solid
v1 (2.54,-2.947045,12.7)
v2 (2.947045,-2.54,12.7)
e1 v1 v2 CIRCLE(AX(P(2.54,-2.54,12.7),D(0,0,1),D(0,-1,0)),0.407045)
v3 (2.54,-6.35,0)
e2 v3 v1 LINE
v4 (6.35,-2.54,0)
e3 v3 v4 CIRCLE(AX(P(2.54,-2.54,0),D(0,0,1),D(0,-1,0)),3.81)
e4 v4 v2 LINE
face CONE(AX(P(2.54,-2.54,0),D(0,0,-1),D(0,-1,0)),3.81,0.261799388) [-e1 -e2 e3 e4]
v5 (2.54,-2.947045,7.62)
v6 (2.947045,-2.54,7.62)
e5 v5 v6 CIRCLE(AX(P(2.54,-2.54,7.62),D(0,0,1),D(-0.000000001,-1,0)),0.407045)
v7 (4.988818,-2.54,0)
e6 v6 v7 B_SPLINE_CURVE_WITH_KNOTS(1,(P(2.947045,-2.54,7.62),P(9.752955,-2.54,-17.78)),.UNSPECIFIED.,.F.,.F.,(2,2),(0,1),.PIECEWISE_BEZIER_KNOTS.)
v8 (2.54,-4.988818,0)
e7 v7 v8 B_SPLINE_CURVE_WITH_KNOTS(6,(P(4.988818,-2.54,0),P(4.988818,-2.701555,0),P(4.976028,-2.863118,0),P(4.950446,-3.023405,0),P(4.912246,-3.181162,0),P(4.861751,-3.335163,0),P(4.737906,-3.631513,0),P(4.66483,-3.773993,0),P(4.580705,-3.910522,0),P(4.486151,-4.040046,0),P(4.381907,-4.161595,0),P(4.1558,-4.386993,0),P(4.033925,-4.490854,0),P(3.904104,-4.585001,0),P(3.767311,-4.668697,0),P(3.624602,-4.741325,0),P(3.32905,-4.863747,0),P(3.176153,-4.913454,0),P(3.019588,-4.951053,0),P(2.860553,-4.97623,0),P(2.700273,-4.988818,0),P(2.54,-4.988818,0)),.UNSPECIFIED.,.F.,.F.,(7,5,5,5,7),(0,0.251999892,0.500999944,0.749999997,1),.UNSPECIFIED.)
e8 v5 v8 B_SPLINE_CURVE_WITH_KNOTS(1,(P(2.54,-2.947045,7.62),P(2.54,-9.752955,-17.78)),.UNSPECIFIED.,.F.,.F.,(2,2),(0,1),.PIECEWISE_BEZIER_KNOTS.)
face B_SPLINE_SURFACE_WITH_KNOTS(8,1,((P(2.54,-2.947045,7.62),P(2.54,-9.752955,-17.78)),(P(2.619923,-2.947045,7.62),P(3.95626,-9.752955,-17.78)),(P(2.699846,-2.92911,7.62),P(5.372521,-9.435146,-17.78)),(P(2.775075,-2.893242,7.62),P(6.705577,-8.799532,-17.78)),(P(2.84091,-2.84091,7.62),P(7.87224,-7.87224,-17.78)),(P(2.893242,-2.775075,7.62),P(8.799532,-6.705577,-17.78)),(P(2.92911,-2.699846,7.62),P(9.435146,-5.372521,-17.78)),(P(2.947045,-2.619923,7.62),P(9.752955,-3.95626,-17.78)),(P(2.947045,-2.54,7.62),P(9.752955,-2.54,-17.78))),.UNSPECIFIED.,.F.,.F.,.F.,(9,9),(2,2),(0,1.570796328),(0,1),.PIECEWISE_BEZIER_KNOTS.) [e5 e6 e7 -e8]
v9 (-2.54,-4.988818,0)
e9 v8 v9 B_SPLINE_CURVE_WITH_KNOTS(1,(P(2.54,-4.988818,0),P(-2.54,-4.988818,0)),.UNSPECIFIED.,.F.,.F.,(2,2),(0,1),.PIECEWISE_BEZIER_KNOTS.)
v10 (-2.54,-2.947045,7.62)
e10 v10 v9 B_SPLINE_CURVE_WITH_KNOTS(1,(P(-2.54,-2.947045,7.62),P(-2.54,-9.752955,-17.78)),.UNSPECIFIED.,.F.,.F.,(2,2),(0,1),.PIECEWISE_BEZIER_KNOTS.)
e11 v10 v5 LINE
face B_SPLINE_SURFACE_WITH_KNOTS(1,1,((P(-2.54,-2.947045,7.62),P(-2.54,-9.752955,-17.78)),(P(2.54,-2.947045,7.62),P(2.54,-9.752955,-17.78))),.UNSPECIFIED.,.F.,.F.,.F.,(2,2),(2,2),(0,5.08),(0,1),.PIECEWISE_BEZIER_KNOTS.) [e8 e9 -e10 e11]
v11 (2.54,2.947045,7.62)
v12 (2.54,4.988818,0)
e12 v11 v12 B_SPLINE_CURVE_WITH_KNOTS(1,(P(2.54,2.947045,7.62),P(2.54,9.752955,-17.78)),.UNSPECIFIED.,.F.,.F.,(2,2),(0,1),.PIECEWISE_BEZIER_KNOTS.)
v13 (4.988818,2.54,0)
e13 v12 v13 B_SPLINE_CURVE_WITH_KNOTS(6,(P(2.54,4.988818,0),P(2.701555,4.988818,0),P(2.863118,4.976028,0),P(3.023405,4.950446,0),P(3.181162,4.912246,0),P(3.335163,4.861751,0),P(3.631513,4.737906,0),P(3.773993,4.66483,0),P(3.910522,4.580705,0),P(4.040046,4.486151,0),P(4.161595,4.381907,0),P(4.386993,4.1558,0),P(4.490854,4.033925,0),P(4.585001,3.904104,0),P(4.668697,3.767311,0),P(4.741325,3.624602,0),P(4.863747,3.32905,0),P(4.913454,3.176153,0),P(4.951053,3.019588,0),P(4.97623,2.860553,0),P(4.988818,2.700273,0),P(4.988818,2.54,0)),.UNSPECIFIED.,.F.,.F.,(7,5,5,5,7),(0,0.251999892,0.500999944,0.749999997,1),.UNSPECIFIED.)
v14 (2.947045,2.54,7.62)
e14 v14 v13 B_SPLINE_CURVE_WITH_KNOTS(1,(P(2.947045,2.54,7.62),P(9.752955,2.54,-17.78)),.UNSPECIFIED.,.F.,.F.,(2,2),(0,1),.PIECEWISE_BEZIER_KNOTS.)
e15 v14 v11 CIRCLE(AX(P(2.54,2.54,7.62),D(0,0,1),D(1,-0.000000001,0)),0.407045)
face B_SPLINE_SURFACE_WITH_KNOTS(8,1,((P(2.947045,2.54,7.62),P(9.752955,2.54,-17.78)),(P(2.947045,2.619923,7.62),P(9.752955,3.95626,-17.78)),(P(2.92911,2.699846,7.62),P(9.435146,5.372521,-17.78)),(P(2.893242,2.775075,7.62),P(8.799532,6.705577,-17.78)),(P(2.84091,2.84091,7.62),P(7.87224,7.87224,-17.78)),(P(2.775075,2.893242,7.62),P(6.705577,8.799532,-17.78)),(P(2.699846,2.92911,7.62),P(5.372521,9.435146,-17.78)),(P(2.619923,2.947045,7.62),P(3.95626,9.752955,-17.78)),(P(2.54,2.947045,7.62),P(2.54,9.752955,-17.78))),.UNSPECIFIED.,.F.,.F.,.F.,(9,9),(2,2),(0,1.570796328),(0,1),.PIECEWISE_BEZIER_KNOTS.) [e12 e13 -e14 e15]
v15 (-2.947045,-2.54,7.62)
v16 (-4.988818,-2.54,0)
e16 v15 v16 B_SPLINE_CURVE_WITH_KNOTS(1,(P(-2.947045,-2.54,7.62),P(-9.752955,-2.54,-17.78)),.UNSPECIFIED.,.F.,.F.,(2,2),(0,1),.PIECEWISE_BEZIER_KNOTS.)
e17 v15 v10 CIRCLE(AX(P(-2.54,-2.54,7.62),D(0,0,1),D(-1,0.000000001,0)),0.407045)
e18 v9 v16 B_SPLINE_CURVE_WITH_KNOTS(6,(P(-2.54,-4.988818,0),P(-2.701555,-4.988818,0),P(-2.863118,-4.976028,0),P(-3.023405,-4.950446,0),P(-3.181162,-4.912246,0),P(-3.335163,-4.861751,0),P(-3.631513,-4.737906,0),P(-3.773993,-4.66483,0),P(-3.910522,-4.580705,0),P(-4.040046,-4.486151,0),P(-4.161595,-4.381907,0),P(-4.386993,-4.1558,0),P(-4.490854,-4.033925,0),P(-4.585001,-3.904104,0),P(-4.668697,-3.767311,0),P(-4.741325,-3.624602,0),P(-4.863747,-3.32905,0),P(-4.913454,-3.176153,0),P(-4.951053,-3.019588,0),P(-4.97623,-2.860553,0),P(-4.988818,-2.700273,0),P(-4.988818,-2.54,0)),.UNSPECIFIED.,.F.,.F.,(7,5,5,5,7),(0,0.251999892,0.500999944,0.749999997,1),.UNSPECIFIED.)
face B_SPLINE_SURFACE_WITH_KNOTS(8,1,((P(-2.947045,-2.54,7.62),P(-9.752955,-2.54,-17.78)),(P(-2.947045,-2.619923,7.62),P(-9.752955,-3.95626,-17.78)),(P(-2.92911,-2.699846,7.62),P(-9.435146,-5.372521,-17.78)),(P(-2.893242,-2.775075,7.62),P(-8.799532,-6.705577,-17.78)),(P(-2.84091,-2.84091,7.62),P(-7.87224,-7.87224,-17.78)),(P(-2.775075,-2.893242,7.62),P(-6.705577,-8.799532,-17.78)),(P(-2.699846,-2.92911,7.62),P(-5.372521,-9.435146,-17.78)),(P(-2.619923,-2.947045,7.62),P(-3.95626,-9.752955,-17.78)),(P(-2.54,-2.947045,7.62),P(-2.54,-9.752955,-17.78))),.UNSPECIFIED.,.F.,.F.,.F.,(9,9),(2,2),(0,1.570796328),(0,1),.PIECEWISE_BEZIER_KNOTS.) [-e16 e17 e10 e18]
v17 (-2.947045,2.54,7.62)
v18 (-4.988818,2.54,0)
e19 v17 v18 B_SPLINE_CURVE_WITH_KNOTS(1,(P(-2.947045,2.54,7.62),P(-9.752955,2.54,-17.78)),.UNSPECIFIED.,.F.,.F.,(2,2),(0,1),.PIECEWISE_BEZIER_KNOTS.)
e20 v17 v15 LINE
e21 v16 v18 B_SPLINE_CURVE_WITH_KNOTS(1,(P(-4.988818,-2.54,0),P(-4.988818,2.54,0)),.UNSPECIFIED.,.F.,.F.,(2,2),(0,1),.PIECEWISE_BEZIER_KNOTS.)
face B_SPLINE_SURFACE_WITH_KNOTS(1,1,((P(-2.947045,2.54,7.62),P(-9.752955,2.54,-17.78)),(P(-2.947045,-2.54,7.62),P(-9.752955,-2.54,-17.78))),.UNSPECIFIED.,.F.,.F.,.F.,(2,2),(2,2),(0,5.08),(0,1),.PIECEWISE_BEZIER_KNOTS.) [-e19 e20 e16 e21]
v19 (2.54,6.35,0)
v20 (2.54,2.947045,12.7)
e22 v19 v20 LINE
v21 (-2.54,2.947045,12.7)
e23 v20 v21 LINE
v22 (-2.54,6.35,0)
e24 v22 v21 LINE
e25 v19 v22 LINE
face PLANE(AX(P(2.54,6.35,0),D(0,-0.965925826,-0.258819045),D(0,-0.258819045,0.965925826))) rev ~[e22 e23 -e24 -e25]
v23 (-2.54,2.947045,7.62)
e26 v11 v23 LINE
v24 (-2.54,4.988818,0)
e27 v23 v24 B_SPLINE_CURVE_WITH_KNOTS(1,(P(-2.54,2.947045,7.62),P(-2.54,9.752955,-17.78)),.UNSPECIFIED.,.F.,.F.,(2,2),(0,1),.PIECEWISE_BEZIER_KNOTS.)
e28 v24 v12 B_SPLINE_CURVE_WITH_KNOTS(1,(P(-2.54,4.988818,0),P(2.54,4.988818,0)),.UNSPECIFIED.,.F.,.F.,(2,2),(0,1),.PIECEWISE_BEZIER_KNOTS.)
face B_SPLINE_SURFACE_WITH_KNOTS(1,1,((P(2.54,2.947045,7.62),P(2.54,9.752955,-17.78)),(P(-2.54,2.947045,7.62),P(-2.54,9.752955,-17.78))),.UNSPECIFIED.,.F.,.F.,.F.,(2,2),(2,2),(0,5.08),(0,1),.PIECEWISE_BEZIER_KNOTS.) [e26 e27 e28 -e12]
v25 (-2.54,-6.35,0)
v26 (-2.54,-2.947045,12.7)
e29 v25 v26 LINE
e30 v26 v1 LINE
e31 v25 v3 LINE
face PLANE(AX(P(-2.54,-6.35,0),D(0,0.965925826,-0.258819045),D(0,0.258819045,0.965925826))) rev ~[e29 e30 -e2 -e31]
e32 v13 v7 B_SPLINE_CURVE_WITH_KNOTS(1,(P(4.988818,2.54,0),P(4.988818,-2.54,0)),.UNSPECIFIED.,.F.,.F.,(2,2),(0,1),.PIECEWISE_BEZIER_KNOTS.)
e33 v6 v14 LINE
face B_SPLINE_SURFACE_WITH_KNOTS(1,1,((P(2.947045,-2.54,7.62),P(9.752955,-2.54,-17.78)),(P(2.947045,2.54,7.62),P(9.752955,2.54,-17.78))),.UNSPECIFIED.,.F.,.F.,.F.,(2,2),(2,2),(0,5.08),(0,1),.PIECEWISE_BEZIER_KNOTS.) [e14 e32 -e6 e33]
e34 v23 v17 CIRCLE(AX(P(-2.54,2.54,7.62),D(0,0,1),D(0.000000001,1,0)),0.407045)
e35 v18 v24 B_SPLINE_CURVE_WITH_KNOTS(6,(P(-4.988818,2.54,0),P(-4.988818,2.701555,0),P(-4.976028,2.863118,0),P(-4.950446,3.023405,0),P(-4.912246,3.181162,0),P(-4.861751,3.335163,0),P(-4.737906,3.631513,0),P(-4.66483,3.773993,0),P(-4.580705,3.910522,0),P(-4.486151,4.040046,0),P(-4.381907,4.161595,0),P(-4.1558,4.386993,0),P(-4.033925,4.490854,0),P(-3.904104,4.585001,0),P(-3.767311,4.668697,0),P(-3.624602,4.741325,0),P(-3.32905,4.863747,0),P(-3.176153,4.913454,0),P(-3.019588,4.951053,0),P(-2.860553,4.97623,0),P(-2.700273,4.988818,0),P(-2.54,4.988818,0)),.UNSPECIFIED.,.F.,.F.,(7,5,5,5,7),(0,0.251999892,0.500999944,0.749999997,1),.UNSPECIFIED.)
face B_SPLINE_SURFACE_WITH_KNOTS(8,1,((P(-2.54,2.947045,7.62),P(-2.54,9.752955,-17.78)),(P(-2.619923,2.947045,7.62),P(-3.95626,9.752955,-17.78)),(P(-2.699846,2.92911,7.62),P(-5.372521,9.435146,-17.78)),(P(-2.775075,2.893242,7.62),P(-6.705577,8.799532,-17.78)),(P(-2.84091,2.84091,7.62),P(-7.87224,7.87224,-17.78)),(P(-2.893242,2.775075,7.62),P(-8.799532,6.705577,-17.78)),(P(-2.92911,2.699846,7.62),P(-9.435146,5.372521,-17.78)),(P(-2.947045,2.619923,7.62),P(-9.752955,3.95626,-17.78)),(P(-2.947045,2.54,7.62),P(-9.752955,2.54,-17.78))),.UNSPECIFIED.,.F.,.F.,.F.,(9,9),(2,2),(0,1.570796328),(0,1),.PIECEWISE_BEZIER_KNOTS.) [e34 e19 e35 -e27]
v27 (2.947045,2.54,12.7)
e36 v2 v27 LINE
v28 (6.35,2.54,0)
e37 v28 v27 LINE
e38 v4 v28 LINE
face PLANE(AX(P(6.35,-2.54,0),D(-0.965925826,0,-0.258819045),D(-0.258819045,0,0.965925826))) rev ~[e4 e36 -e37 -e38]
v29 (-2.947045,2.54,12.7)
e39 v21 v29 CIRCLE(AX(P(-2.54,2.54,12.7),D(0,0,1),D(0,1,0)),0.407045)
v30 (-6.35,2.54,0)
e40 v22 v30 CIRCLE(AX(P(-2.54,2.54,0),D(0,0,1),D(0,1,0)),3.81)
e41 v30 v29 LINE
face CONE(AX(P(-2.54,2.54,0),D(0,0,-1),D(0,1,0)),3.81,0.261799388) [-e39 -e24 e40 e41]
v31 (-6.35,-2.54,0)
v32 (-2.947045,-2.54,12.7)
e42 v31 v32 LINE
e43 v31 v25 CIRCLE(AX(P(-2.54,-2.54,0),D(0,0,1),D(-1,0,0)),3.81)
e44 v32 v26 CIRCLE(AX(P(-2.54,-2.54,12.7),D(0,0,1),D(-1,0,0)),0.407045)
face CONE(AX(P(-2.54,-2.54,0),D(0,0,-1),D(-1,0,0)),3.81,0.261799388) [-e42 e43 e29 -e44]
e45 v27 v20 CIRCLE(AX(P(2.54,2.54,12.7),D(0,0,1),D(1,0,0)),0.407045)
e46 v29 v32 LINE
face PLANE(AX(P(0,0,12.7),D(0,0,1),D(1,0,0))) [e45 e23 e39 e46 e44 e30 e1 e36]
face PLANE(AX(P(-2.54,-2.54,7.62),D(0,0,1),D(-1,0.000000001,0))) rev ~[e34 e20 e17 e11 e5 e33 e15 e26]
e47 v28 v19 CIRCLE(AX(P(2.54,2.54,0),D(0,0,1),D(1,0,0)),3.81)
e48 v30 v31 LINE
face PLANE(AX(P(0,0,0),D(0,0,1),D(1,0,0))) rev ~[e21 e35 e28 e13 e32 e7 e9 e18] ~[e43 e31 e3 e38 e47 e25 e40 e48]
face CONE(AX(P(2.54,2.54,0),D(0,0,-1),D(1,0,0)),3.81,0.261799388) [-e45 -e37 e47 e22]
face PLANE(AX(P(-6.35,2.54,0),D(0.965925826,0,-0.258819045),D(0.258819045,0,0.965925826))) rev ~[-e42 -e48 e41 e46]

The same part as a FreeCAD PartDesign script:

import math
import FreeCAD as App
import Part
import Sketcher
from FreeCAD import Vector
Q = App.Units.Quantity

doc = App.newDocument("Part")
body = doc.addObject("PartDesign::Body", "Body")

sketch1 = doc.addObject("Sketcher::SketchObject", "Sketch")
body.addObject(sketch1)
sketch1.AttachmentSupport = (doc.XY_Plane, [""])
sketch1.MapMode = "FlatFace"
sketch1.addGeometry([
    Part.ArcOfCircle(Part.Circle(Vector(2.5, 2.5, 0), Vector(0, 0, 1), 3.8), math.radians(0), math.radians(90)),
    Part.LineSegment(Vector(2.5, 6.3, 0), Vector(-2.5, 6.3, 0)),
    Part.ArcOfCircle(Part.Circle(Vector(-2.5, 2.5, 0), Vector(0, 0, 1), 3.8), math.radians(90), math.radians(180)),
    Part.LineSegment(Vector(-6.3, 2.5, 0), Vector(-6.3, -2.5, 0)),
    Part.ArcOfCircle(Part.Circle(Vector(-2.5, -2.5, 0), Vector(0, 0, 1), 3.8), math.radians(180), math.radians(270)),
    Part.LineSegment(Vector(-2.5, -6.3, 0), Vector(2.5, -6.3, 0)),
    Part.ArcOfCircle(Part.Circle(Vector(2.5, -2.5, 0), Vector(0, 0, 1), 3.8), math.radians(-90), math.radians(0)),
    Part.LineSegment(Vector(6.3, -2.5, 0), Vector(6.3, 2.5, 0)),
], False)
sketch1.addConstraint([
    Sketcher.Constraint("Tangent", 0, 2, 1, 1),
    Sketcher.Constraint("Tangent", 1, 2, 2, 1),
    Sketcher.Constraint("Tangent", 2, 2, 3, 1),
    Sketcher.Constraint("Tangent", 3, 2, 4, 1),
    Sketcher.Constraint("Tangent", 4, 2, 5, 1),
    Sketcher.Constraint("Tangent", 5, 2, 6, 1),
    Sketcher.Constraint("Tangent", 6, 2, 7, 1),
    Sketcher.Constraint("Tangent", 7, 2, 0, 1),
    Sketcher.Constraint("Horizontal", 1),
    Sketcher.Constraint("Vertical", 3),
    Sketcher.Constraint("Horizontal", 5),
    Sketcher.Constraint("Vertical", 7),
    Sketcher.Constraint("Equal", 0, 2),
    Sketcher.Constraint("Equal", 2, 4),
    Sketcher.Constraint("Equal", 4, 6),
    Sketcher.Constraint("Symmetric", 0, 3, 4, 3, -1, 1),
    Sketcher.Constraint("Equal", 5, 3),
    Sketcher.Constraint("Radius", 0, Q("0.15 in")),
    Sketcher.Constraint("DistanceX", 1, 2, 1, 1, Q("0.2 in")),
])
pad1 = doc.addObject("PartDesign::Pad", "Pad")
body.addObject(pad1)
pad1.Profile = sketch1
pad1.Length = Q("0.5 in")
pad1.TaperAngle = -15

sketch2 = doc.addObject("Sketcher::SketchObject", "Sketch001")
body.addObject(sketch2)
sketch2.AttachmentSupport = (doc.XY_Plane, [""])
sketch2.MapMode = "FlatFace"
sketch2.AttachmentOffset = App.Placement(Vector(0, 0, 0.3 * 25.4), App.Rotation())
sketch2.addGeometry([
    Part.ArcOfCircle(Part.Circle(Vector(-2.54, -2.54, 0), Vector(0, 0, 1), 0.41), math.radians(180), math.radians(270)),
    Part.LineSegment(Vector(-2.54, -2.95, 0), Vector(2.54, -2.95, 0)),
    Part.ArcOfCircle(Part.Circle(Vector(2.54, -2.54, 0), Vector(0, 0, 1), 0.41), math.radians(-90), math.radians(0)),
    Part.LineSegment(Vector(2.95, -2.54, 0), Vector(2.95, 2.54, 0)),
    Part.ArcOfCircle(Part.Circle(Vector(2.54, 2.54, 0), Vector(0, 0, 1), 0.41), math.radians(0), math.radians(90)),
    Part.LineSegment(Vector(2.54, 2.95, 0), Vector(-2.54, 2.95, 0)),
    Part.ArcOfCircle(Part.Circle(Vector(-2.54, 2.54, 0), Vector(0, 0, 1), 0.41), math.radians(90), math.radians(180)),
    Part.LineSegment(Vector(-2.95, 2.54, 0), Vector(-2.95, -2.54, 0)),
], False)
sketch2.addConstraint([
    Sketcher.Constraint("Tangent", 0, 2, 1, 1),
    Sketcher.Constraint("Tangent", 1, 2, 2, 1),
    Sketcher.Constraint("Tangent", 2, 2, 3, 1),
    Sketcher.Constraint("Tangent", 3, 2, 4, 1),
    Sketcher.Constraint("Tangent", 4, 2, 5, 1),
    Sketcher.Constraint("Tangent", 5, 2, 6, 1),
    Sketcher.Constraint("Tangent", 6, 2, 7, 1),
    Sketcher.Constraint("Tangent", 7, 2, 0, 1),
    Sketcher.Constraint("Horizontal", 1),
    Sketcher.Constraint("Vertical", 3),
    Sketcher.Constraint("Horizontal", 5),
    Sketcher.Constraint("Vertical", 7),
    Sketcher.Constraint("Equal", 0, 2),
    Sketcher.Constraint("Equal", 2, 4),
    Sketcher.Constraint("Equal", 4, 6),
    Sketcher.Constraint("Symmetric", 0, 3, 4, 3, -1, 1),
    Sketcher.Constraint("Equal", 5, 3),
    Sketcher.Constraint("DistanceX", 1, 1, 1, 2, Q("0.2 in")),
    Sketcher.Constraint("Radius", 0, Q("0.407045 mm")),
])
pocket1 = doc.addObject("PartDesign::Pocket", "Pocket")
body.addObject(pocket1)
pocket1.Profile = sketch2
pocket1.Length = Q("1 in")
pocket1.TaperAngle = 15

doc.recompute()
